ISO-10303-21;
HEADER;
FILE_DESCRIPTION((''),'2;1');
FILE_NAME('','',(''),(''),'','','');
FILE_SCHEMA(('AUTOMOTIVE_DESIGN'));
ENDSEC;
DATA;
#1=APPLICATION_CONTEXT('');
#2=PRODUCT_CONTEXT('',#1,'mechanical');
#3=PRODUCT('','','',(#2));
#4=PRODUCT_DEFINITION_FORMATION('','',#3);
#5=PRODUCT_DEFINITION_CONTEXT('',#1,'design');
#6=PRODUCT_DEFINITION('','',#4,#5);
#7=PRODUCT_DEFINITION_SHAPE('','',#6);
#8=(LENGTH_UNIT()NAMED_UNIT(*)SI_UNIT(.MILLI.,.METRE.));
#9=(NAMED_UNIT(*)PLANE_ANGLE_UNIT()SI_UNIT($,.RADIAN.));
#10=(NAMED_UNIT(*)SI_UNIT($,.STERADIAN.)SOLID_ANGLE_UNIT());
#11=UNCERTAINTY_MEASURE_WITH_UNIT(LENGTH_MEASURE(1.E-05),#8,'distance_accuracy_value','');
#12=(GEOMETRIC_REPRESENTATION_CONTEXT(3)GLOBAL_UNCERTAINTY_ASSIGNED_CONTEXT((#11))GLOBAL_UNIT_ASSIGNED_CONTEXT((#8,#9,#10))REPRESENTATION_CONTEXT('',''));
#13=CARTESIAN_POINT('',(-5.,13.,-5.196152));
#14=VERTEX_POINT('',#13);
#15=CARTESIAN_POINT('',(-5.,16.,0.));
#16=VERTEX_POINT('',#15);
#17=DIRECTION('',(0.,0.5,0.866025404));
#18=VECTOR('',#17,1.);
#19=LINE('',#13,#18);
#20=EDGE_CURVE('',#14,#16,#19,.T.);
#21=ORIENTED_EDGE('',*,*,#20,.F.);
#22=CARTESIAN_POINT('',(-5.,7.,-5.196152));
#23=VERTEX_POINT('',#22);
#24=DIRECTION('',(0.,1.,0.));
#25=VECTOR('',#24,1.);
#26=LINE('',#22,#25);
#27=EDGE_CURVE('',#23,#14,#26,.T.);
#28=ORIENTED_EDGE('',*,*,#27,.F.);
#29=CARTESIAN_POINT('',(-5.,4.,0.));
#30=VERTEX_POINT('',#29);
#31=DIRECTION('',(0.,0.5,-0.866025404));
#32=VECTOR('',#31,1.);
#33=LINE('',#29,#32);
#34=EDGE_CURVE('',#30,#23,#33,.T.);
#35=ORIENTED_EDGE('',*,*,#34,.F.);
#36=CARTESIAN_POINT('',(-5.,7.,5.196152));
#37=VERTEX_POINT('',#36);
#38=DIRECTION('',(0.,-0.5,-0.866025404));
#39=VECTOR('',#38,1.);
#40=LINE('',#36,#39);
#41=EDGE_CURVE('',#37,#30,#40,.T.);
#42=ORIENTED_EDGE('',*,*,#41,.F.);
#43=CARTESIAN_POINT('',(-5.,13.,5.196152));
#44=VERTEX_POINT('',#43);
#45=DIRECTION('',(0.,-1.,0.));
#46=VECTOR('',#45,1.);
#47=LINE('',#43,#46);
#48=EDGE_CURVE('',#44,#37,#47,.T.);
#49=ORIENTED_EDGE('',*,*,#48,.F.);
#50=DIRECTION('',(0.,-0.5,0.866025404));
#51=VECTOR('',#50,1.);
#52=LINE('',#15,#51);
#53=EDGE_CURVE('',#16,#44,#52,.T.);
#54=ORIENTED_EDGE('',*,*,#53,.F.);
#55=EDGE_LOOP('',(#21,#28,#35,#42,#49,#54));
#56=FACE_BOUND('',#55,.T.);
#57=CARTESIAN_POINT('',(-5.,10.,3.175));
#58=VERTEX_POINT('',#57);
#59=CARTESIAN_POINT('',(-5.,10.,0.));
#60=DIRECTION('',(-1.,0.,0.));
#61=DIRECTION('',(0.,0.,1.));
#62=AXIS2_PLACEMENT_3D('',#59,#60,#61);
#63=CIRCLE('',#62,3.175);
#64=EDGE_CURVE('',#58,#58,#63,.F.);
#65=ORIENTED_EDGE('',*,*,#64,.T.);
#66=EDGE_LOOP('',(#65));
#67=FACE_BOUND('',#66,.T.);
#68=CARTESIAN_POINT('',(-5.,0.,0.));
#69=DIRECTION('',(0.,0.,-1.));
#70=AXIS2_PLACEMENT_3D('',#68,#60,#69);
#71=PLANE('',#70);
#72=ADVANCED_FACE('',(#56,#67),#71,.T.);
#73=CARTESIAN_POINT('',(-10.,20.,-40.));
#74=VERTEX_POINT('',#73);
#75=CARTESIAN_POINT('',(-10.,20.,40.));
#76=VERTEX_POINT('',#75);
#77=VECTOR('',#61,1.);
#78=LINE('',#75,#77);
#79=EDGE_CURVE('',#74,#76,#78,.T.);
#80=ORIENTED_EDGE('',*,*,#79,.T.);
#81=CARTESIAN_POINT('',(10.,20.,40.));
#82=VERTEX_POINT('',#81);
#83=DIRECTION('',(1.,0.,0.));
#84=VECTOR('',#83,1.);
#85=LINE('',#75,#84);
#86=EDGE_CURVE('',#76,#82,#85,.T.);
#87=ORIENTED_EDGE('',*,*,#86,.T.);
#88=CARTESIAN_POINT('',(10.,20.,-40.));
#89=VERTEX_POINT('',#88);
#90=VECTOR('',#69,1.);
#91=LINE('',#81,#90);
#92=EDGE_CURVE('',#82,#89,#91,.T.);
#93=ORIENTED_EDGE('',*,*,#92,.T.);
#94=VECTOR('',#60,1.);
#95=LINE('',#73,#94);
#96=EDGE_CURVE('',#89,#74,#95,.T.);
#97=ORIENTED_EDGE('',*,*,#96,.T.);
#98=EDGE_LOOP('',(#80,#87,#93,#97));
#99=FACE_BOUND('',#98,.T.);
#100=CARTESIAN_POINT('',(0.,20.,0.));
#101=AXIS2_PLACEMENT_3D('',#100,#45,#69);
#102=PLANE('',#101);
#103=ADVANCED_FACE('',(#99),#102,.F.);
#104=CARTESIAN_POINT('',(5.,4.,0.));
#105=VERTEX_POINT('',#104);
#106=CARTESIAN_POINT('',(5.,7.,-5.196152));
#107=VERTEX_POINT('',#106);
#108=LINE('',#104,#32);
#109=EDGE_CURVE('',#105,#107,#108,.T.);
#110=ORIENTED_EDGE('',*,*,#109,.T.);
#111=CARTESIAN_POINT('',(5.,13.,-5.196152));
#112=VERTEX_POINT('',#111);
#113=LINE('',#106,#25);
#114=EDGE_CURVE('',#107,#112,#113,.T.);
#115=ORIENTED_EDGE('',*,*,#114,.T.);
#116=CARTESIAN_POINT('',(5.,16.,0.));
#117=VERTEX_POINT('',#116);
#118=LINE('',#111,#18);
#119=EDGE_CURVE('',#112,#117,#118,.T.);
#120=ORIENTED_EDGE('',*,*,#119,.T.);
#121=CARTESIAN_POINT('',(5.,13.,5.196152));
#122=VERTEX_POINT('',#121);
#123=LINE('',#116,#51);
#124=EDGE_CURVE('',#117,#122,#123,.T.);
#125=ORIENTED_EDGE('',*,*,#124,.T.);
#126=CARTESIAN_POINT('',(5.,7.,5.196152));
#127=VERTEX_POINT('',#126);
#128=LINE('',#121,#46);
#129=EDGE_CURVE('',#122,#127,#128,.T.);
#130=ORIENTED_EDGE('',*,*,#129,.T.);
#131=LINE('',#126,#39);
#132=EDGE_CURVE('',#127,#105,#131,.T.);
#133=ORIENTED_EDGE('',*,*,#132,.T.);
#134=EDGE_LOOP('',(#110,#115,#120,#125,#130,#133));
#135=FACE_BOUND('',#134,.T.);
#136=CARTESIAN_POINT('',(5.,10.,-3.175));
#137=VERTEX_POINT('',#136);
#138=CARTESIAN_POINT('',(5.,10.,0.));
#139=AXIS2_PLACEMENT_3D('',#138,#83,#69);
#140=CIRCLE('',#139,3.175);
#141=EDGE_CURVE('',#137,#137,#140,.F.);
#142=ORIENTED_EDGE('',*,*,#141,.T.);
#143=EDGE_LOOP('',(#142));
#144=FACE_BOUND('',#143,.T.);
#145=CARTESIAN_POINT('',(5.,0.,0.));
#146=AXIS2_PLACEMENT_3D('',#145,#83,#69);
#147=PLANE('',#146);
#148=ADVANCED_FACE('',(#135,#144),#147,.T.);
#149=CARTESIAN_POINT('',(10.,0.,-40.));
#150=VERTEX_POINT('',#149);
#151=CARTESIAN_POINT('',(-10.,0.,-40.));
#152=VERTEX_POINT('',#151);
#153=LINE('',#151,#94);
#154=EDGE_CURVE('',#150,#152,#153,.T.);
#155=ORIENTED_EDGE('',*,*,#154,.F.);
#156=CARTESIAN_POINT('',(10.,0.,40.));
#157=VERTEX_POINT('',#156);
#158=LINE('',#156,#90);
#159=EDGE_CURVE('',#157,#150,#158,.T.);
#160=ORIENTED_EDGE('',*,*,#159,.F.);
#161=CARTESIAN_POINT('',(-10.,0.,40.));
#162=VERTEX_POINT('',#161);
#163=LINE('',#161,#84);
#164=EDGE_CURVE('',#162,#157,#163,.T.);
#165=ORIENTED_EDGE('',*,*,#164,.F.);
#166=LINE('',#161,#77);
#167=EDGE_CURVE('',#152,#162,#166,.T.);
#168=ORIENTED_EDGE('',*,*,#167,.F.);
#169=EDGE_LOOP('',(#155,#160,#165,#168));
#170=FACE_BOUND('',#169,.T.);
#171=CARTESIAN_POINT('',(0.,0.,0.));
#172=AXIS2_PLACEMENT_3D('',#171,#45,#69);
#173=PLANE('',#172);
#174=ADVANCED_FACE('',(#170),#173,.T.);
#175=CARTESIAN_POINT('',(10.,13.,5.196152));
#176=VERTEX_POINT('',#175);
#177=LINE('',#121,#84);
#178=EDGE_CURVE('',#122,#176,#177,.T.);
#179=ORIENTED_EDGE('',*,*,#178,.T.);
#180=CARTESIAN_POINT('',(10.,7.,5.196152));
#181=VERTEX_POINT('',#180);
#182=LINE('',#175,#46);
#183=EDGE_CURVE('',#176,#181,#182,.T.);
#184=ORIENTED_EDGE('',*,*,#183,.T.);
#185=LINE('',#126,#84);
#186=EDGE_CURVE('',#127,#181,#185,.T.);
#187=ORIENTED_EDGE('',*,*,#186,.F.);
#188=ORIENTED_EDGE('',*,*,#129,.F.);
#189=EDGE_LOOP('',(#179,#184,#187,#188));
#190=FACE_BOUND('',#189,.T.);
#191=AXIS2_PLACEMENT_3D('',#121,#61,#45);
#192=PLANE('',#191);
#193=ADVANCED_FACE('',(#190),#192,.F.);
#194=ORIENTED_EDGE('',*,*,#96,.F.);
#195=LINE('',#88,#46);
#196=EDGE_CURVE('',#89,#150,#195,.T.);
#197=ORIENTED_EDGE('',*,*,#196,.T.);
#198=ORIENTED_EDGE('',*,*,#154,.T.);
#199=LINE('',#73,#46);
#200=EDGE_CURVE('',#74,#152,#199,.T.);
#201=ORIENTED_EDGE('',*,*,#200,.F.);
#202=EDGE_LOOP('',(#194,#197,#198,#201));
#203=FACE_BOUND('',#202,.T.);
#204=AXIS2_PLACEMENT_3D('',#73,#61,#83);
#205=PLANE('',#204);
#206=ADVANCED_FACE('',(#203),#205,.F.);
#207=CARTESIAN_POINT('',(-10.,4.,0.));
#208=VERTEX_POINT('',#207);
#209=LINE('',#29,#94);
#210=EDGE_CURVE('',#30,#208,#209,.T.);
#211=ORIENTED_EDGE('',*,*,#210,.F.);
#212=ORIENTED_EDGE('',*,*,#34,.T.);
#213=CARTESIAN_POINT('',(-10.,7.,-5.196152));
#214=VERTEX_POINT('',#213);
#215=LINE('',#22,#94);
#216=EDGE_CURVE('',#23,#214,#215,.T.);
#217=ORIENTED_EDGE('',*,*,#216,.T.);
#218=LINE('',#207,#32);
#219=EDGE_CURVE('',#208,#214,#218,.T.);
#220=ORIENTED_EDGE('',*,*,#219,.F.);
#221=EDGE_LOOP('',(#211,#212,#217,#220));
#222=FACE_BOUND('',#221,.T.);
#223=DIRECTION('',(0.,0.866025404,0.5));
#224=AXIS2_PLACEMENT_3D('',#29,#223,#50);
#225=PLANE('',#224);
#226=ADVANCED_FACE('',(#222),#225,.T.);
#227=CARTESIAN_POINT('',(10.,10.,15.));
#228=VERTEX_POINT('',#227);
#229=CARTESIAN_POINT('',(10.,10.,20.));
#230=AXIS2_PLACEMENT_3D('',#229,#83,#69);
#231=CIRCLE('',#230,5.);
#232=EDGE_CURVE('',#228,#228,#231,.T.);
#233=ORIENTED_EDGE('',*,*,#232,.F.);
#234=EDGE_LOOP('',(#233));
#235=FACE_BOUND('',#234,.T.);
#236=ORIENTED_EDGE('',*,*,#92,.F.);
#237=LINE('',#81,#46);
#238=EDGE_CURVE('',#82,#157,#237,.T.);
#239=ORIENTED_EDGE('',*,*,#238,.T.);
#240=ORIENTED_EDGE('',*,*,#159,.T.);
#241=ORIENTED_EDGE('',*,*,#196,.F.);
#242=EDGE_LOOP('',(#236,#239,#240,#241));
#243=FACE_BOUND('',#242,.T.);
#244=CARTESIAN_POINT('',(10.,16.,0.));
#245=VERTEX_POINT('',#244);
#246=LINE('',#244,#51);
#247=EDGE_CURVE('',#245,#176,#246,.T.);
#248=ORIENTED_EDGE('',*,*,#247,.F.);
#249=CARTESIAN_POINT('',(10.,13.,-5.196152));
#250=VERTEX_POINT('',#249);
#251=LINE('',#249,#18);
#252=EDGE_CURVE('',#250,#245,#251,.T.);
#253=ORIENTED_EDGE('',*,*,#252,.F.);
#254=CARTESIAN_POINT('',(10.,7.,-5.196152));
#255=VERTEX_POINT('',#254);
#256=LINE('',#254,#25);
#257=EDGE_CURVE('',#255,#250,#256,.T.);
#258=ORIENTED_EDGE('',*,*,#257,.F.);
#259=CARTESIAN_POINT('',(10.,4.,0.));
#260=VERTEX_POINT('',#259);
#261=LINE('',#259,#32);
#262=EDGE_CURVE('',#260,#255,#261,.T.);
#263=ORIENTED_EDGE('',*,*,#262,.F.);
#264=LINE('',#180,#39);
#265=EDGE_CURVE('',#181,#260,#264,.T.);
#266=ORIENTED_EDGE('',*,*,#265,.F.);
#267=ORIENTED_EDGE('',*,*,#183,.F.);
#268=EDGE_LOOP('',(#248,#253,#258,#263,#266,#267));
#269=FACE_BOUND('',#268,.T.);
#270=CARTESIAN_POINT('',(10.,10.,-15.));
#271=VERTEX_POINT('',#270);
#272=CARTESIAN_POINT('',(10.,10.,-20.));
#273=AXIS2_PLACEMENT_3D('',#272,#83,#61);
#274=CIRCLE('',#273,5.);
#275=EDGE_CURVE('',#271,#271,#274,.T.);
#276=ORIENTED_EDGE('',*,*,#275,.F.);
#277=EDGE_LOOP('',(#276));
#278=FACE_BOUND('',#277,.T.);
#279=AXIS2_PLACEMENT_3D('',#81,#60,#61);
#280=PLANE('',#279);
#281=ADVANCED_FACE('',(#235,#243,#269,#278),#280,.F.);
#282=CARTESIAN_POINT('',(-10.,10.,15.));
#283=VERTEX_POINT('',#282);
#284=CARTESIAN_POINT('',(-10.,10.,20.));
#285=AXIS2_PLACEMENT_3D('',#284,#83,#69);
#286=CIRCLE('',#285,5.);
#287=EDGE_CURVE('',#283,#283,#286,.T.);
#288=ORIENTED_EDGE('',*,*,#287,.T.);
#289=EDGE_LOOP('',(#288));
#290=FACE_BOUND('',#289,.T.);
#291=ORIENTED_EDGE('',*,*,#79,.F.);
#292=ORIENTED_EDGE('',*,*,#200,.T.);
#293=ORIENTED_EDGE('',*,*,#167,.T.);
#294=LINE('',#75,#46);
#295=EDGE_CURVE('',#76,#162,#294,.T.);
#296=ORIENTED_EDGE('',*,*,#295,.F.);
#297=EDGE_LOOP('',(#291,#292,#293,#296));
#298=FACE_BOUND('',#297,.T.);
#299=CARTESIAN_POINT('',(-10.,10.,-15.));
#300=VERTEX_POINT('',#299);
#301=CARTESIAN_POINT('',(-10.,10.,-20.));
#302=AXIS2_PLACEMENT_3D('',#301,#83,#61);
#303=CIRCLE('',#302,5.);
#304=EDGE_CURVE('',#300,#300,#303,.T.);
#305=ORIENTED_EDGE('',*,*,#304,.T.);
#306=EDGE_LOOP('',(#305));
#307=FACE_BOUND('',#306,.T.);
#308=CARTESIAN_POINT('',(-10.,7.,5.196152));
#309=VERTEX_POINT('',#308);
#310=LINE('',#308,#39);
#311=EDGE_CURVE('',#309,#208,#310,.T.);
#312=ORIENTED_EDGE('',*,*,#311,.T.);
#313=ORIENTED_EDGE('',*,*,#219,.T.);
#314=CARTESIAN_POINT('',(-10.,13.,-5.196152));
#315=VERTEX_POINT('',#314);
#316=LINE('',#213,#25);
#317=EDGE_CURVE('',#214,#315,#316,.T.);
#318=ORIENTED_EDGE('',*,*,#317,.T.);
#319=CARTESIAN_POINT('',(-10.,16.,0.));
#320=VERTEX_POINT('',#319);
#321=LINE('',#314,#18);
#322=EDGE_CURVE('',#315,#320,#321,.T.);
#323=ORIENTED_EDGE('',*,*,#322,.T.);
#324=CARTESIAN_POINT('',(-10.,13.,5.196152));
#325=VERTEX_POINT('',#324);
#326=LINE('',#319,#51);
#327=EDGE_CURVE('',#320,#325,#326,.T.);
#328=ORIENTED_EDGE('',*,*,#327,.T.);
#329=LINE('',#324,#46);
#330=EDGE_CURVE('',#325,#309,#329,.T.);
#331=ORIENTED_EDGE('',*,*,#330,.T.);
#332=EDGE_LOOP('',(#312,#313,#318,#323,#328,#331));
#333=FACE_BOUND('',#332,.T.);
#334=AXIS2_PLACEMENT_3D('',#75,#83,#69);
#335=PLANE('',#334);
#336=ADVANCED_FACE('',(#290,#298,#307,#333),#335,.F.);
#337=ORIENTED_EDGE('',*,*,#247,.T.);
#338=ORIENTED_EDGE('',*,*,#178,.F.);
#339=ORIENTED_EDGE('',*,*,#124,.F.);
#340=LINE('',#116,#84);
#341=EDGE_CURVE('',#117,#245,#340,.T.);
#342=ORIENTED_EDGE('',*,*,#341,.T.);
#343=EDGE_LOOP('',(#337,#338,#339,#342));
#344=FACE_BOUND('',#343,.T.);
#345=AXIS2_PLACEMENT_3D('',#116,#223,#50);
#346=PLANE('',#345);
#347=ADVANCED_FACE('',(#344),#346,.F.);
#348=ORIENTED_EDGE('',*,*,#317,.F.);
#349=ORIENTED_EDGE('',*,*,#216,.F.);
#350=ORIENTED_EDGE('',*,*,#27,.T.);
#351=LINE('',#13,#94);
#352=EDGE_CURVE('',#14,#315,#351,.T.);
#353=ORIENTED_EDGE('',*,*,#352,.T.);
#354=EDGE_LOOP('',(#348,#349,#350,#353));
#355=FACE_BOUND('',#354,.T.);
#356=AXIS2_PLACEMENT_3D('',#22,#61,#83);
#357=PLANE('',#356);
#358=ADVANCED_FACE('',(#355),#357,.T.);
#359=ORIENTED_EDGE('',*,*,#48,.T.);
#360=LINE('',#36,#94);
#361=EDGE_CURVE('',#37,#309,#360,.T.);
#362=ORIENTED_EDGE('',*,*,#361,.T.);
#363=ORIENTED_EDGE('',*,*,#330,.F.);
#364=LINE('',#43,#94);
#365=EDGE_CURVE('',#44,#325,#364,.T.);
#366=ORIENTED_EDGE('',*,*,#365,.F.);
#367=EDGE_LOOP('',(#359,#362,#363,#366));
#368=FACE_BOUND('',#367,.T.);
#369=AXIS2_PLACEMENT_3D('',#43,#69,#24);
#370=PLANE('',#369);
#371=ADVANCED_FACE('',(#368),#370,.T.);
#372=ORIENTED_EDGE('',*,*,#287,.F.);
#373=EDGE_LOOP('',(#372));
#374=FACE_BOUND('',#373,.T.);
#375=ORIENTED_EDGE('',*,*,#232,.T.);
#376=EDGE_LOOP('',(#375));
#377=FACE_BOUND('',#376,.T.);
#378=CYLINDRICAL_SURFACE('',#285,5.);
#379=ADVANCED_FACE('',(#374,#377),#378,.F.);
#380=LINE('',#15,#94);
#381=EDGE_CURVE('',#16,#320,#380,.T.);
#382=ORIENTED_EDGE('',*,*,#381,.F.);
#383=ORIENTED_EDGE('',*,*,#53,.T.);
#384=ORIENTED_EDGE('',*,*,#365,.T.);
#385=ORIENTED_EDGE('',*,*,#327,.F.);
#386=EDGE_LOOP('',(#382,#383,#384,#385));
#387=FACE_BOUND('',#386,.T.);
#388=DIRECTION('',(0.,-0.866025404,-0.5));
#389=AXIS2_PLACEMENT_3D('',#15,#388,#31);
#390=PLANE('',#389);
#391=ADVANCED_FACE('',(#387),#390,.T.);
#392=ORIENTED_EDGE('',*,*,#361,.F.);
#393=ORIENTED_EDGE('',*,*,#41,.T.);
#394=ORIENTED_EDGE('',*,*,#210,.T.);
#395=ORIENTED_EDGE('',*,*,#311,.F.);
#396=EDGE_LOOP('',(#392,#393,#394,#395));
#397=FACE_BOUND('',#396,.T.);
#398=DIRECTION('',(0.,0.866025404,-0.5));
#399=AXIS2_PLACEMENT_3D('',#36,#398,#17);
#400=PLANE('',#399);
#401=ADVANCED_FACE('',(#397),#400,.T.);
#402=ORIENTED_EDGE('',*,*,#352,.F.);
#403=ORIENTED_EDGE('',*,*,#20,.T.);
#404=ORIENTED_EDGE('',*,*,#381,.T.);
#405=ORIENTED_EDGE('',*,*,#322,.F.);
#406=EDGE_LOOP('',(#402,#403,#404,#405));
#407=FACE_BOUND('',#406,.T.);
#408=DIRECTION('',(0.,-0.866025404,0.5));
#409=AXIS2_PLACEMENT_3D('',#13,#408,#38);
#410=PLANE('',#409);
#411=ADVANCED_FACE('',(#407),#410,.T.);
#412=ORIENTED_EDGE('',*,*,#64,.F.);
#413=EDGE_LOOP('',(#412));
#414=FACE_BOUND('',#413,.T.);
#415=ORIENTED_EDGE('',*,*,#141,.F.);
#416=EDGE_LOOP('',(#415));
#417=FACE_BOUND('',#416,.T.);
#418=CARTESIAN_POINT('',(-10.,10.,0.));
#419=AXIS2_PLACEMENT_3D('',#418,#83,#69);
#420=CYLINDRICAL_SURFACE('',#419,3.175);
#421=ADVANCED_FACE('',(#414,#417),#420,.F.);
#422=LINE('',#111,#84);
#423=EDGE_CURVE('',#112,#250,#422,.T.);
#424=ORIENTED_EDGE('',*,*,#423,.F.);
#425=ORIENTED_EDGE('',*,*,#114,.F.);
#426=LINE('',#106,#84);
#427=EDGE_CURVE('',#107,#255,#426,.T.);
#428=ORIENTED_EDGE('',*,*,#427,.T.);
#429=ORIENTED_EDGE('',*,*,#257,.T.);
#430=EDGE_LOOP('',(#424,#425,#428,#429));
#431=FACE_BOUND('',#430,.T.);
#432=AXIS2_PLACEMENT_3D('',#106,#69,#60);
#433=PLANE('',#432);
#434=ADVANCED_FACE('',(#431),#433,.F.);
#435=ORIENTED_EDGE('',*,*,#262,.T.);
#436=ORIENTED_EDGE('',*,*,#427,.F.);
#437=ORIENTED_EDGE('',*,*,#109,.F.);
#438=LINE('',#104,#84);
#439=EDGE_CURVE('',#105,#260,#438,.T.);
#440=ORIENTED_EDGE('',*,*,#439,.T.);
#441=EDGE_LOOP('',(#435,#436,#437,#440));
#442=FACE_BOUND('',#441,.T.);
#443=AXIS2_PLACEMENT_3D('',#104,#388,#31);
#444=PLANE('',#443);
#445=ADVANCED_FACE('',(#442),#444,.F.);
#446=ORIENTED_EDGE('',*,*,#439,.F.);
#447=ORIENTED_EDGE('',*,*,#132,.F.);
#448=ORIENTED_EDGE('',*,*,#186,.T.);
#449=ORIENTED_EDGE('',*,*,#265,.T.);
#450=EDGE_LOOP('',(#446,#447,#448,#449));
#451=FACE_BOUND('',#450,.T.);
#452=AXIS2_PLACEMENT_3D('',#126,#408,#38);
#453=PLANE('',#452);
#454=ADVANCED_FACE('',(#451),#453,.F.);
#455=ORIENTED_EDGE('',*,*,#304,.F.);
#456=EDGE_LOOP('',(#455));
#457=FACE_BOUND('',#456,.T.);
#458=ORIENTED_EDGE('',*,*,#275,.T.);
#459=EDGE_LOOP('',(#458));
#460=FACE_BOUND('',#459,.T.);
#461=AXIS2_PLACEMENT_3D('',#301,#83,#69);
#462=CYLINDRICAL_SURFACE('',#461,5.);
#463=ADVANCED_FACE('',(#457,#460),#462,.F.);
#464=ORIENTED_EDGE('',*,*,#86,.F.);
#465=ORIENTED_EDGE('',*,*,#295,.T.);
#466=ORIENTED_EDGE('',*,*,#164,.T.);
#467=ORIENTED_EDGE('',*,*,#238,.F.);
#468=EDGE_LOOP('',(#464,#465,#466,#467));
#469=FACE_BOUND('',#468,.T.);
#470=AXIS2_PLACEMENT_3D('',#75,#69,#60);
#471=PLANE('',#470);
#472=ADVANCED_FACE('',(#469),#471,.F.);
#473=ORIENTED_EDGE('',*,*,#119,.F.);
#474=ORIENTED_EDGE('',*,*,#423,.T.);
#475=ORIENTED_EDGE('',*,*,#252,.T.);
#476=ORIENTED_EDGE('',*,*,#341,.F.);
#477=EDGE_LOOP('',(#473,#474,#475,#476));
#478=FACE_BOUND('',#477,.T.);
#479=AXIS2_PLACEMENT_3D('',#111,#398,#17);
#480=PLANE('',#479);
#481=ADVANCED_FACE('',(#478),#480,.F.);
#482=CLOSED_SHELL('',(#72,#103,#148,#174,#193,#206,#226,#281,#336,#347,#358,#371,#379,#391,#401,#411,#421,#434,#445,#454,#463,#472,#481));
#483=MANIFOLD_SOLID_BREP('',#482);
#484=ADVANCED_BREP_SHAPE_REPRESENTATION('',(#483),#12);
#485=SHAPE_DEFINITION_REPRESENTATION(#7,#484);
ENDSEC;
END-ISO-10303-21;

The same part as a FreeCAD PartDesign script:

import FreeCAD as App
import Part
import Sketcher

V = App.Vector
Q = App.Units.Quantity


def add_polygon(sketch, points):
    """Adds a closed chain of lines whose ends are joined by coincident constraints."""
    first, n = sketch.GeometryCount, len(points)
    for a, b in zip(points, points[1:] + points[:1]):
        sketch.addGeometry(Part.LineSegment(App.Vector(*a, 0), App.Vector(*b, 0)), False)
    for i in range(n):
        sketch.addConstraint(Sketcher.Constraint("Coincident", first + i, 2, first + (i + 1) % n, 1))

doc = App.newDocument("Part")
params = doc.addObject("Spreadsheet::Sheet", "Params")
for row, (alias, value) in enumerate([
    ("sketch1_width", "20 mm"),
    ("sketch1_height", "80 mm"),
    ("pad1_length", "20 mm"),
    ("sketch2_diameter", "10 mm"),
    ("sketch3_diameter", "6.35 mm"),
    ("sketch4_width", "6 mm"),
    ("sketch4_length", "6 mm"),
    ("pocket3_length", "5 mm"),
], start=1):
    params.set(f"A{row}", alias)
    params.set(f"B{row}", "=" + value)
    params.setAlias(f"B{row}", alias)

body = doc.addObject("PartDesign::Body", "Body")

# Sketch on XZ plane
sketch1 = body.newObject("Sketcher::SketchObject", "Sketch")
sketch1.AttachmentSupport = (doc.getObject("XZ_Plane"), [""])
sketch1.MapMode = "FlatFace"
add_polygon(sketch1, [(-10, -40), (-10, 40), (10, 40), (10, -40)])  # lines 0-3
sketch1.addConstraint(Sketcher.Constraint("Vertical", 0))
sketch1.addConstraint(Sketcher.Constraint("Horizontal", 1))
sketch1.addConstraint(Sketcher.Constraint("Vertical", 2))
sketch1.addConstraint(Sketcher.Constraint("Horizontal", 3))
sketch1.addConstraint(Sketcher.Constraint("Symmetric", 0, 2, 2, 2, -1, 1))
sketch1.addConstraint(Sketcher.Constraint("DistanceX", 1, 1, 1, 2, 20.0))
sketch1.addConstraint(Sketcher.Constraint("DistanceY", 0, 1, 0, 2, 80.0))
sketch1.setExpression("Constraints[9]", "Params.sketch1_width")
sketch1.setExpression("Constraints[10]", "Params.sketch1_height")
pad1 = body.newObject("PartDesign::Pad", "Pad")
pad1.Profile = sketch1
pad1.setExpression("Length", "Params.pad1_length")
pad1.Reversed = True

# Sketch on YZ plane
sketch2 = body.newObject("Sketcher::SketchObject", "Sketch001")
sketch2.AttachmentSupport = (doc.getObject("YZ_Plane"), [""])
sketch2.MapMode = "FlatFace"
sketch2.AttachmentOffset = App.Placement(V(0, 0, 10), App.Rotation())
sketch2.addGeometry(Part.Circle(V(10, 20, 0), V(0, 0, 1), 5), False)
sketch2.addGeometry(Part.Circle(V(10, -20, 0), V(0, 0, 1), 5), False)
sketch2.addConstraint(Sketcher.Constraint("Equal", 0, 1))
sketch2.addConstraint(Sketcher.Constraint("Symmetric", 0, 3, 1, 3, -1))
sketch2.addConstraint(Sketcher.Constraint("Diameter", 0, 10.0))
sketch2.addConstraint(Sketcher.Constraint("DistanceX", -1, 1, 0, 3, 10.0))
sketch2.addConstraint(Sketcher.Constraint("DistanceY", -1, 1, 0, 3, 20.0))
sketch2.setExpression("Constraints[2]", "Params.sketch2_diameter")
pocket1 = body.newObject("PartDesign::Pocket", "Pocket")
pocket1.Profile = sketch2
pocket1.Type = "ThroughAll"

# Sketch on YZ plane
sketch3 = body.newObject("Sketcher::SketchObject", "Sketch002")
sketch3.AttachmentSupport = (doc.getObject("YZ_Plane"), [""])
sketch3.MapMode = "FlatFace"
sketch3.AttachmentOffset = App.Placement(V(0, 0, 10), App.Rotation())
sketch3.addGeometry(Part.Circle(V(10, 0, 0), V(0, 0, 1), 3.2), False)
sketch3.addConstraint(Sketcher.Constraint("PointOnObject", 0, 3, -1))
sketch3.addConstraint(Sketcher.Constraint("Diameter", 0, 6.35))
sketch3.addConstraint(Sketcher.Constraint("DistanceX", -1, 1, 0, 3, 10.0))
sketch3.setExpression("Constraints[1]", "Params.sketch3_diameter")
pocket2 = body.newObject("PartDesign::Pocket", "Pocket001")
pocket2.Profile = sketch3
pocket2.Type = "ThroughAll"

# Sketch on YZ plane
sketch4 = body.newObject("Sketcher::SketchObject", "Sketch003")
sketch4.AttachmentSupport = (doc.getObject("YZ_Plane"), [""])
sketch4.MapMode = "FlatFace"
sketch4.AttachmentOffset = App.Placement(V(0, 0, 10), App.Rotation())
add_polygon(sketch4, [(16, 0), (13, 5), (7, 5), (4, 0), (7, -5), (13, -5)])  # lines 0-5
sketch4.addConstraint(Sketcher.Constraint("Horizontal", 1))
sketch4.addConstraint(Sketcher.Constraint("Horizontal", 4))
sketch4.addConstraint(Sketcher.Constraint("Symmetric", 1, 2, 3, 2, -1))
sketch4.addConstraint(Sketcher.Constraint("PointOnObject", 2, 2, -1))
sketch4.addConstraint(Sketcher.Constraint("PointOnObject", 5, 2, -1))
sketch4.addConstraint(Sketcher.Constraint("Parallel", 0, 3))
sketch4.addConstraint(Sketcher.Constraint("Parallel", 2, 5))
sketch4.addConstraint(Sketcher.Constraint("DistanceX", 1, 2, 1, 1, 6.0))
sketch4.addConstraint(Sketcher.Constraint("Angle", 0, Q("120 deg")))
sketch4.addConstraint(Sketcher.Constraint("Distance", 0, 6.0))
sketch4.addConstraint(Sketcher.Constraint("DistanceX", -1, 1, 0, 2, 13.0))
sketch4.setExpression("Constraints[13]", "Params.sketch4_width")
sketch4.setExpression("Constraints[15]", "Params.sketch4_length")
pocket3 = body.newObject("PartDesign::Pocket", "Pocket002")
pocket3.Profile = sketch4
pocket3.setExpression("Length", "Params.pocket3_length")
doc.recompute()

mirrored = body.newObject("PartDesign::Mirrored", "Mirrored")
mirrored.Originals = [pocket3]
mirrored.MirrorPlane = (doc.getObject("YZ_Plane"), [""])
body.Tip = mirrored

doc.recompute()
